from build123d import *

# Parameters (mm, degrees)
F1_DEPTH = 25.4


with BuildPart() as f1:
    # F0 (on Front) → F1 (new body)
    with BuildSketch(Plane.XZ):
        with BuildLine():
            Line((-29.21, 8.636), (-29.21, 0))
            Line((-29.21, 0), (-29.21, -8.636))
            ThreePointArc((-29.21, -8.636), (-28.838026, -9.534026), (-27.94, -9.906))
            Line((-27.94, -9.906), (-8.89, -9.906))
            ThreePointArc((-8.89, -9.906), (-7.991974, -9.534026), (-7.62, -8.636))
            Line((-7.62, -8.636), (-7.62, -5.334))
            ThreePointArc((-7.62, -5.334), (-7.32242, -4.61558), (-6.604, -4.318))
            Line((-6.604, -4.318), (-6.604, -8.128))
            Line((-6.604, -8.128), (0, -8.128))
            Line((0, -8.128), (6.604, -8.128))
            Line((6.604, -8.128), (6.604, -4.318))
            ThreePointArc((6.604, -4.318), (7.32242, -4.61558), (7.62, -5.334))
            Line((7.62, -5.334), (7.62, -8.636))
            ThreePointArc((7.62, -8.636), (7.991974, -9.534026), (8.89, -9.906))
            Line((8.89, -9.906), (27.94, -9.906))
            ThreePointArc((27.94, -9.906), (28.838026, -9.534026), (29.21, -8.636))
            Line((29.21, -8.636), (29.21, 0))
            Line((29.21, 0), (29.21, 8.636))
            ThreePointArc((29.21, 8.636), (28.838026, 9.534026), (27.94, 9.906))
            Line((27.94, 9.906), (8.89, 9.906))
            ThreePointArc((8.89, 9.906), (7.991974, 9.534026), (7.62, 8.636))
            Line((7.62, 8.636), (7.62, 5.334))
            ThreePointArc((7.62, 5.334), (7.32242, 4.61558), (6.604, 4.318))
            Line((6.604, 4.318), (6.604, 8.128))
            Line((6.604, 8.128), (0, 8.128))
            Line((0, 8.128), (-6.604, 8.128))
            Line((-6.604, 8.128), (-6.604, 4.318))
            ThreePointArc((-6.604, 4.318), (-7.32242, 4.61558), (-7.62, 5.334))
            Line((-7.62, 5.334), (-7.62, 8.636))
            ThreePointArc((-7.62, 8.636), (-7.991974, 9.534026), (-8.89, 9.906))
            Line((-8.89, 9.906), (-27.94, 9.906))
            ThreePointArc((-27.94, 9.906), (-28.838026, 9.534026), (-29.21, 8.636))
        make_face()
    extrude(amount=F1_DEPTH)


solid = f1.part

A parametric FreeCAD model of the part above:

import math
import FreeCAD as App
import Part
import Sketcher
from FreeCAD import Vector
Q = App.Units.Quantity

doc = App.newDocument("Part")
body = doc.addObject("PartDesign::Body", "Body")

sketch1 = body.newObject("Sketcher::SketchObject", "Sketch")
sketch1.AttachmentSupport = (doc.getObject("XZ_Plane"), [""])
sketch1.MapMode = "FlatFace"
sketch1.addGeometry([
    Part.LineSegment(Vector(-29.2, 8.6, 0), Vector(-29.2, -8.6, 0)),
    Part.ArcOfCircle(Part.Circle(Vector(-27.9, -8.6, 0), Vector(0, 0, 1), 1.3), math.radians(180), math.radians(270)),
    Part.LineSegment(Vector(-27.9, -9.9, 0), Vector(-8.9, -9.9, 0)),
    Part.ArcOfCircle(Part.Circle(Vector(-8.9, -8.6, 0), Vector(0, 0, 1), 1.3), math.radians(-90), math.radians(0)),
    Part.LineSegment(Vector(-7.6, -8.6, 0), Vector(-7.6, -5.3, 0)),
    Part.ArcOfCircle(Part.Circle(Vector(-6.6, -5.3, 0), Vector(0, 0, 1), 1), math.radians(90), math.radians(180)),
    Part.LineSegment(Vector(-6.6, -4.3, 0), Vector(-6.6, -8.1, 0)),
    Part.LineSegment(Vector(-6.6, -8.1, 0), Vector(6.6, -8.1, 0)),
    Part.LineSegment(Vector(6.6, -8.1, 0), Vector(6.6, -4.3, 0)),
    Part.ArcOfCircle(Part.Circle(Vector(6.6, -5.3, 0), Vector(0, 0, 1), 1), math.radians(0), math.radians(90)),
    Part.LineSegment(Vector(7.6, -5.3, 0), Vector(7.6, -8.6, 0)),
    Part.ArcOfCircle(Part.Circle(Vector(8.9, -8.6, 0), Vector(0, 0, 1), 1.3), math.radians(180), math.radians(270)),
    Part.LineSegment(Vector(8.9, -9.9, 0), Vector(27.9, -9.9, 0)),
    Part.ArcOfCircle(Part.Circle(Vector(27.9, -8.6, 0), Vector(0, 0, 1), 1.3), math.radians(-90), math.radians(0)),
    Part.LineSegment(Vector(29.2, -8.6, 0), Vector(29.2, 8.6, 0)),
    Part.ArcOfCircle(Part.Circle(Vector(27.9, 8.6, 0), Vector(0, 0, 1), 1.3), math.radians(0), math.radians(90)),
    Part.LineSegment(Vector(27.9, 9.9, 0), Vector(8.9, 9.9, 0)),
    Part.ArcOfCircle(Part.Circle(Vector(8.9, 8.6, 0), Vector(0, 0, 1), 1.3), math.radians(90), math.radians(180)),
    Part.LineSegment(Vector(7.6, 8.6, 0), Vector(7.6, 5.3, 0)),
    Part.ArcOfCircle(Part.Circle(Vector(6.6, 5.3, 0), Vector(0, 0, 1), 1), math.radians(-90), math.radians(0)),
    Part.LineSegment(Vector(6.6, 4.3, 0), Vector(6.6, 8.1, 0)),
    Part.LineSegment(Vector(6.6, 8.1, 0), Vector(-6.6, 8.1, 0)),
    Part.LineSegment(Vector(-6.6, 8.1, 0), Vector(-6.6, 4.3, 0)),
    Part.ArcOfCircle(Part.Circle(Vector(-6.6, 5.3, 0), Vector(0, 0, 1), 1), math.radians(-180), math.radians(-90)),
    Part.LineSegment(Vector(-7.6, 5.3, 0), Vector(-7.6, 8.6, 0)),
    Part.ArcOfCircle(Part.Circle(Vector(-8.9, 8.6, 0), Vector(0, 0, 1), 1.3), math.radians(0), math.radians(90)),
    Part.LineSegment(Vector(-8.9, 9.9, 0), Vector(-27.9, 9.9, 0)),
    Part.ArcOfCircle(Part.Circle(Vector(-27.9, 8.6, 0), Vector(0, 0, 1), 1.3), math.radians(90), math.radians(180)),
], False)
sketch1.addConstraint([
    Sketcher.Constraint("Tangent", 0, 2, 1, 1),
    Sketcher.Constraint("Tangent", 1, 2, 2, 1),
    Sketcher.Constraint("Tangent", 2, 2, 3, 1),
    Sketcher.Constraint("Tangent", 3, 2, 4, 1),
    Sketcher.Constraint("Tangent", 4, 2, 5, 2),
    Sketcher.Constraint("Coincident", 5, 1, 6, 1),
    Sketcher.Constraint("Coincident", 6, 2, 7, 1),
    Sketcher.Constraint("Coincident", 7, 2, 8, 1),
    Sketcher.Constraint("Coincident", 8, 2, 9, 2),
    Sketcher.Constraint("Tangent", 9, 1, 10, 1),
    Sketcher.Constraint("Tangent", 10, 2, 11, 1),
    Sketcher.Constraint("Tangent", 11, 2, 12, 1),
    Sketcher.Constraint("Tangent", 12, 2, 13, 1),
    Sketcher.Constraint("Tangent", 13, 2, 14, 1),
    Sketcher.Constraint("Tangent", 14, 2, 15, 1),
    Sketcher.Constraint("Tangent", 15, 2, 16, 1),
    Sketcher.Constraint("Tangent", 16, 2, 17, 1),
    Sketcher.Constraint("Tangent", 17, 2, 18, 1),
    Sketcher.Constraint("Tangent", 18, 2, 19, 2),
    Sketcher.Constraint("Coincident", 19, 1, 20, 1),
    Sketcher.Constraint("Coincident", 20, 2, 21, 1),
    Sketcher.Constraint("Coincident", 21, 2, 22, 1),
    Sketcher.Constraint("Coincident", 22, 2, 23, 2),
    Sketcher.Constraint("Tangent", 23, 1, 24, 1),
    Sketcher.Constraint("Tangent", 24, 2, 25, 1),
    Sketcher.Constraint("Tangent", 25, 2, 26, 1),
    Sketcher.Constraint("Tangent", 26, 2, 27, 1),
    Sketcher.Constraint("Tangent", 27, 2, 0, 1),
    Sketcher.Constraint("Vertical", 0),
    Sketcher.Constraint("Horizontal", 2),
    Sketcher.Constraint("Vertical", 4),
    Sketcher.Constraint("Vertical", 6),
    Sketcher.Constraint("Horizontal", 7),
    Sketcher.Constraint("Vertical", 8),
    Sketcher.Constraint("Vertical", 10),
    Sketcher.Constraint("Horizontal", 12),
    Sketcher.Constraint("Vertical", 14),
    Sketcher.Constraint("Horizontal", 16),
    Sketcher.Constraint("Vertical", 18),
    Sketcher.Constraint("Vertical", 20),
    Sketcher.Constraint("Horizontal", 21),
    Sketcher.Constraint("Vertical", 22),
    Sketcher.Constraint("Vertical", 24),
    Sketcher.Constraint("Horizontal", 26),
    Sketcher.Constraint("Equal", 1, 3),
    Sketcher.Constraint("Equal", 5, 9),
    Sketcher.Constraint("Equal", 3, 11),
    Sketcher.Constraint("Equal", 11, 13),
    Sketcher.Constraint("Equal", 13, 15),
    Sketcher.Constraint("Equal", 15, 17),
    Sketcher.Constraint("Equal", 9, 19),
    Sketcher.Constraint("Equal", 19, 23),
    Sketcher.Constraint("Equal", 17, 25),
    Sketcher.Constraint("Equal", 25, 27),
    Sketcher.Constraint("Symmetric", 1, 3, 15, 3, -1, 1),
    Sketcher.Constraint("Symmetric", 5, 3, 19, 3, -1, 1),
    Sketcher.Constraint("Symmetric", 9, 3, 23, 3, -1, 1),
    Sketcher.Constraint("Symmetric", 6, 2, 20, 2, -1, 1),
    Sketcher.Constraint("Symmetric", 5, 3, 9, 3, -2),
    Sketcher.Constraint("Horizontal", 3, 3, 11, 3),
    Sketcher.Constraint("Horizontal", 17, 3, 25, 3),
    Sketcher.Constraint("Vertical", 23, 3, 5, 1),
    Sketcher.Constraint("Vertical", 19, 3, 7, 2),
    Sketcher.Constraint("Vertical", 6, 2, 21, 2),
    Sketcher.Constraint("Radius", 1, Q("0.0499999 in")),
    Sketcher.Constraint("Radius", 5, Q("0.0400001 in")),
    Sketcher.Constraint("DistanceX", 2, 1, 2, 2, Q("0.75 in")),
    Sketcher.Constraint("DistanceX", 7, 1, 7, 2, Q("0.52 in")),
    Sketcher.Constraint("DistanceY", 0, 2, 0, 1, Q("0.68 in")),
    Sketcher.Constraint("DistanceY", 4, 1, 4, 2, Q("0.13 in")),
    Sketcher.Constraint("DistanceY", 6, 2, 6, 1, Q("0.15 in")),
])
pad1 = body.newObject("PartDesign::Pad", "Pad")
pad1.Profile = sketch1
pad1.Length = Q("1 in")

doc.recompute()
